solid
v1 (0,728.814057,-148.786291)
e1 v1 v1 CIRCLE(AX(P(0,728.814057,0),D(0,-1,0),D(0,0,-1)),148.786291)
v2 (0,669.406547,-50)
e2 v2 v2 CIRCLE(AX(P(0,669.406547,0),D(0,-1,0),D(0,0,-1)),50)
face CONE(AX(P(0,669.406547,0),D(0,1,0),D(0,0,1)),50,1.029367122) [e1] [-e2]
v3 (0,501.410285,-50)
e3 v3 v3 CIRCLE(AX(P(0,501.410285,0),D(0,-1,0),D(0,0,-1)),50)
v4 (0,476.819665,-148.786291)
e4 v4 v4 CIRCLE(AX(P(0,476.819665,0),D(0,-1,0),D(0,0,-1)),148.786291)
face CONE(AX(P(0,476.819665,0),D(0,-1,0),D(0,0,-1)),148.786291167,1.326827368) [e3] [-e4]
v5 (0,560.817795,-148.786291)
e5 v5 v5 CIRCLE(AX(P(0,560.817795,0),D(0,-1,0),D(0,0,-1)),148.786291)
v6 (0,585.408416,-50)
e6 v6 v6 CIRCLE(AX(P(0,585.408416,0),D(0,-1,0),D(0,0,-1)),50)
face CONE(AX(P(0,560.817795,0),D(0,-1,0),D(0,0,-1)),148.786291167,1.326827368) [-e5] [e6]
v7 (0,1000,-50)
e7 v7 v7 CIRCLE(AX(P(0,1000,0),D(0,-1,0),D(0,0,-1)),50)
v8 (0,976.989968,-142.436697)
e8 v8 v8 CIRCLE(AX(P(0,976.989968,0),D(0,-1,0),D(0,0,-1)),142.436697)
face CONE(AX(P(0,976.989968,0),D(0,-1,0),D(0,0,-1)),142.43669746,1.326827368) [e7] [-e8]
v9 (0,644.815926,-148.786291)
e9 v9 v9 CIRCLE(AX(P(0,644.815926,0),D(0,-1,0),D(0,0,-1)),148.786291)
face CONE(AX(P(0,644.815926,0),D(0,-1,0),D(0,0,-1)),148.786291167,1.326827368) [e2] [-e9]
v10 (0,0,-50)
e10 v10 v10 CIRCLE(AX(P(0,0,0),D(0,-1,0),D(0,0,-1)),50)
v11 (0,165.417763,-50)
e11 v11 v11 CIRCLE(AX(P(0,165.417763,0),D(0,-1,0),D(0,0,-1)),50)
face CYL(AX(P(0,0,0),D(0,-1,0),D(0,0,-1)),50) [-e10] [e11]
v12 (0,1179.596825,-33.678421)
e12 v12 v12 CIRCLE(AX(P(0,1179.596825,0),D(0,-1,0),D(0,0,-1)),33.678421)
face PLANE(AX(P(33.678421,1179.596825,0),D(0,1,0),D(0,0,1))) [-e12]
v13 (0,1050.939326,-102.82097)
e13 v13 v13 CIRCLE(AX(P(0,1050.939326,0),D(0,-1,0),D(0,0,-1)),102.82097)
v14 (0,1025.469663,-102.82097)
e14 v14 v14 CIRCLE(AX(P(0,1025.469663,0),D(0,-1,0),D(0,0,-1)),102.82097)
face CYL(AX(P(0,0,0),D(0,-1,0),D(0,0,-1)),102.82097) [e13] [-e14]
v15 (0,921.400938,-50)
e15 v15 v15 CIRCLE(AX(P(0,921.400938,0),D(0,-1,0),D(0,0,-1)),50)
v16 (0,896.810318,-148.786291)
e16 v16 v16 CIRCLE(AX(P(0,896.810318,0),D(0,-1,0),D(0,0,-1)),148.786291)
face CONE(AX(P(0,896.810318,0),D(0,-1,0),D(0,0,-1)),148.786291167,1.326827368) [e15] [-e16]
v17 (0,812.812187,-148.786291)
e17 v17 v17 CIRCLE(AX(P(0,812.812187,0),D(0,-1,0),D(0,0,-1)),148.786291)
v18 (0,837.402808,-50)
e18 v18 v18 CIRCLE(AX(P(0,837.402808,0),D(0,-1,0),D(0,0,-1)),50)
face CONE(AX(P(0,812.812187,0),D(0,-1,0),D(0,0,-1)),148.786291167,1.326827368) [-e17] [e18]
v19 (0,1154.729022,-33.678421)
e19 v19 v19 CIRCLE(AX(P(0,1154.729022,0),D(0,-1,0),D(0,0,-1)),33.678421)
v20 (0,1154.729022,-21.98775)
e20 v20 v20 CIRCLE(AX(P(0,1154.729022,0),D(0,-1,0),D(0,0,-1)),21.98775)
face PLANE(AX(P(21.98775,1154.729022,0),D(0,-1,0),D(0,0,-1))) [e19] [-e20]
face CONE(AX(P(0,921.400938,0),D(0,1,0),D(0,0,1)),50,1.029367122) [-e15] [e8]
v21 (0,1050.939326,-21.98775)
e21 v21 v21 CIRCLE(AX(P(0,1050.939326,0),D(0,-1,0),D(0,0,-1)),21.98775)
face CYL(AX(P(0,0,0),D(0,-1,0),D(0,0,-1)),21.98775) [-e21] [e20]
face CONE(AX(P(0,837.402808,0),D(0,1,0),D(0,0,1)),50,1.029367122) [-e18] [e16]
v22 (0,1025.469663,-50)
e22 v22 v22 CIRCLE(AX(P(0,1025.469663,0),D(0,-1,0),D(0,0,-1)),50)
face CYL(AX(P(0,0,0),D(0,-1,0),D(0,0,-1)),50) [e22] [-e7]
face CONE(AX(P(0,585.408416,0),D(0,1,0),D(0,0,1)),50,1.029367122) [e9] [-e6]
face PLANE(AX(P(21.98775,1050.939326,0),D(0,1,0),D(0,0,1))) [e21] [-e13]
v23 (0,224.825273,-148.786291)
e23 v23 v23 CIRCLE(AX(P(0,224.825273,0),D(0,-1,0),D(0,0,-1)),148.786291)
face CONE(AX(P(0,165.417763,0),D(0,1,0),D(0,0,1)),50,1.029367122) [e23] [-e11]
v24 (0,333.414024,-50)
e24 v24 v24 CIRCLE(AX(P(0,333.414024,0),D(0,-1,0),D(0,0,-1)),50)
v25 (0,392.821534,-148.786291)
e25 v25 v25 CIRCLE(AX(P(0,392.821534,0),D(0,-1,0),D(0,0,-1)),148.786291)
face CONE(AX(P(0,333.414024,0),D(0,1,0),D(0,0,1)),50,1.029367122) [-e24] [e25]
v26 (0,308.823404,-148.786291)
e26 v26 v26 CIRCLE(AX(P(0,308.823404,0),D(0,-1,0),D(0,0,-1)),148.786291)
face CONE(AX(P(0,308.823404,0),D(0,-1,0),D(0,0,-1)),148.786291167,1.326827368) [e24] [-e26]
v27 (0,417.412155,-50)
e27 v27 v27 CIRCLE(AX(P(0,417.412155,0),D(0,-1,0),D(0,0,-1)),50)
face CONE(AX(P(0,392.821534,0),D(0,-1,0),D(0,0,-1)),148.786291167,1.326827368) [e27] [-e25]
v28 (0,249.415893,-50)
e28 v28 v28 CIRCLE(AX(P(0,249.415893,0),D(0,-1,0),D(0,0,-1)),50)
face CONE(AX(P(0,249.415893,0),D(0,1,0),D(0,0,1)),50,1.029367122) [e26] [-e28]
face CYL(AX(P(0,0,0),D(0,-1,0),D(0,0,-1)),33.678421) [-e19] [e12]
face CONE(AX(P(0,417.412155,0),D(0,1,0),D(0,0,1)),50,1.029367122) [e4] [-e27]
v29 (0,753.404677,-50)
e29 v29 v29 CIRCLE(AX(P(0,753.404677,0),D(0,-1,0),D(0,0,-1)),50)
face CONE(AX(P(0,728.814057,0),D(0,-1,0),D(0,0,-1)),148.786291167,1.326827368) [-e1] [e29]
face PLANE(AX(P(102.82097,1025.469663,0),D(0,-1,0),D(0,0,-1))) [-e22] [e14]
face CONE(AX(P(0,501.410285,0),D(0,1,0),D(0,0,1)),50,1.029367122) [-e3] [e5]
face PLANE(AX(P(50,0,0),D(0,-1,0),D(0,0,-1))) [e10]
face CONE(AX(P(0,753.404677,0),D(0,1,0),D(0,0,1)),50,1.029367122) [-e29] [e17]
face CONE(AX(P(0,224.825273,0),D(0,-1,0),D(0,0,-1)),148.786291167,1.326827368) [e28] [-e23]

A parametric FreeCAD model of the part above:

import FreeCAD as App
import Part
import Sketcher

doc = App.newDocument("Part")
body = doc.addObject("PartDesign::Body", "Body")

sketch1 = body.newObject("Sketcher::SketchObject", "Sketch")
sketch1.AttachmentSupport = (doc.getObject("XY_Plane"), [""])
sketch1.MapMode = "FlatFace"
sketch1.addGeometry([
    Part.LineSegment(App.Vector(0, 1180, 0), App.Vector(0, 0, 0)),
    Part.LineSegment(App.Vector(0, 0, 0), App.Vector(50, 0, 0)),
    Part.LineSegment(App.Vector(50, 0, 0), App.Vector(50, 165, 0)),
    Part.LineSegment(App.Vector(50, 165, 0), App.Vector(149, 225, 0)),
    Part.LineSegment(App.Vector(149, 225, 0), App.Vector(50, 249, 0)),
    Part.LineSegment(App.Vector(50, 249, 0), App.Vector(149, 309, 0)),
    Part.LineSegment(App.Vector(149, 309, 0), App.Vector(50, 333, 0)),
    Part.LineSegment(App.Vector(50, 333, 0), App.Vector(149, 393, 0)),
    Part.LineSegment(App.Vector(149, 393, 0), App.Vector(50, 417, 0)),
    Part.LineSegment(App.Vector(50, 417, 0), App.Vector(149, 477, 0)),
    Part.LineSegment(App.Vector(149, 477, 0), App.Vector(50, 501, 0)),
    Part.LineSegment(App.Vector(50, 501, 0), App.Vector(149, 561, 0)),
    Part.LineSegment(App.Vector(149, 561, 0), App.Vector(50, 585, 0)),
    Part.LineSegment(App.Vector(50, 585, 0), App.Vector(149, 645, 0)),
    Part.LineSegment(App.Vector(149, 645, 0), App.Vector(50, 669, 0)),
    Part.LineSegment(App.Vector(50, 669, 0), App.Vector(149, 729, 0)),
    Part.LineSegment(App.Vector(149, 729, 0), App.Vector(50, 753, 0)),
    Part.LineSegment(App.Vector(50, 753, 0), App.Vector(149, 813, 0)),
    Part.LineSegment(App.Vector(149, 813, 0), App.Vector(50, 837, 0)),
    Part.LineSegment(App.Vector(50, 837, 0), App.Vector(149, 897, 0)),
    Part.LineSegment(App.Vector(149, 897, 0), App.Vector(50, 921, 0)),
    Part.LineSegment(App.Vector(50, 921, 0), App.Vector(142, 977, 0)),
    Part.LineSegment(App.Vector(142, 977, 0), App.Vector(50, 1000, 0)),
    Part.LineSegment(App.Vector(50, 1000, 0), App.Vector(50, 1025, 0)),
    Part.LineSegment(App.Vector(50, 1025, 0), App.Vector(103, 1025, 0)),
    Part.LineSegment(App.Vector(103, 1025, 0), App.Vector(103, 1051, 0)),
    Part.LineSegment(App.Vector(103, 1051, 0), App.Vector(22, 1051, 0)),
    Part.LineSegment(App.Vector(22, 1051, 0), App.Vector(22, 1155, 0)),
    Part.LineSegment(App.Vector(22, 1155, 0), App.Vector(34, 1155, 0)),
    Part.LineSegment(App.Vector(34, 1155, 0), App.Vector(34, 1180, 0)),
    Part.LineSegment(App.Vector(34, 1180, 0), App.Vector(0, 1180, 0)),
], False)
sketch1.addConstraint([
    Sketcher.Constraint("Coincident", 0, 2, 1, 1),
    Sketcher.Constraint("Coincident", 1, 2, 2, 1),
    Sketcher.Constraint("Coincident", 2, 2, 3, 1),
    Sketcher.Constraint("Coincident", 3, 2, 4, 1),
    Sketcher.Constraint("Coincident", 4, 2, 5, 1),
    Sketcher.Constraint("Coincident", 5, 2, 6, 1),
    Sketcher.Constraint("Coincident", 6, 2, 7, 1),
    Sketcher.Constraint("Coincident", 7, 2, 8, 1),
    Sketcher.Constraint("Coincident", 8, 2, 9, 1),
    Sketcher.Constraint("Coincident", 9, 2, 10, 1),
    Sketcher.Constraint("Coincident", 10, 2, 11, 1),
    Sketcher.Constraint("Coincident", 11, 2, 12, 1),
    Sketcher.Constraint("Coincident", 12, 2, 13, 1),
    Sketcher.Constraint("Coincident", 13, 2, 14, 1),
    Sketcher.Constraint("Coincident", 14, 2, 15, 1),
    Sketcher.Constraint("Coincident", 15, 2, 16, 1),
    Sketcher.Constraint("Coincident", 16, 2, 17, 1),
    Sketcher.Constraint("Coincident", 17, 2, 18, 1),
    Sketcher.Constraint("Coincident", 18, 2, 19, 1),
    Sketcher.Constraint("Coincident", 19, 2, 20, 1),
    Sketcher.Constraint("Coincident", 20, 2, 21, 1),
    Sketcher.Constraint("Coincident", 21, 2, 22, 1),
    Sketcher.Constraint("Coincident", 22, 2, 23, 1),
    Sketcher.Constraint("Coincident", 23, 2, 24, 1),
    Sketcher.Constraint("Coincident", 24, 2, 25, 1),
    Sketcher.Constraint("Coincident", 25, 2, 26, 1),
    Sketcher.Constraint("Coincident", 26, 2, 27, 1),
    Sketcher.Constraint("Coincident", 27, 2, 28, 1),
    Sketcher.Constraint("Coincident", 28, 2, 29, 1),
    Sketcher.Constraint("Coincident", 29, 2, 30, 1),
    Sketcher.Constraint("Coincident", 30, 2, 0, 1),
    Sketcher.Constraint("Vertical", 0),
    Sketcher.Constraint("Horizontal", 1),
    Sketcher.Constraint("Vertical", 2),
    Sketcher.Constraint("Vertical", 23),
    Sketcher.Constraint("Horizontal", 24),
    Sketcher.Constraint("Vertical", 25),
    Sketcher.Constraint("Horizontal", 26),
    Sketcher.Constraint("Vertical", 27),
    Sketcher.Constraint("Horizontal", 28),
    Sketcher.Constraint("Vertical", 29),
    Sketcher.Constraint("Horizontal", 30),
    Sketcher.Constraint("Coincident", 0, 2, -1, 1),
    Sketcher.Constraint("Parallel", 3, 5),
    Sketcher.Constraint("Parallel", 4, 6),
    Sketcher.Constraint("Parallel", 5, 7),
    Sketcher.Constraint("Parallel", 6, 8),
    Sketcher.Constraint("Parallel", 7, 9),
    Sketcher.Constraint("Parallel", 8, 10),
    Sketcher.Constraint("Parallel", 9, 11),
    Sketcher.Constraint("Parallel", 10, 12),
    Sketcher.Constraint("Parallel", 11, 13),
    Sketcher.Constraint("Parallel", 12, 14),
    Sketcher.Constraint("Parallel", 13, 15),
    Sketcher.Constraint("Parallel", 14, 16),
    Sketcher.Constraint("Parallel", 15, 17),
    Sketcher.Constraint("Parallel", 16, 18),
    Sketcher.Constraint("Parallel", 17, 19),
    Sketcher.Constraint("Parallel", 18, 20),
    Sketcher.Constraint("Parallel", 19, 21),
    Sketcher.Constraint("Parallel", 20, 22),
    Sketcher.Constraint("Vertical", 2, 2, 4, 2),
    Sketcher.Constraint("Vertical", 3, 2, 5, 2),
    Sketcher.Constraint("Vertical", 4, 2, 6, 2),
    Sketcher.Constraint("Vertical", 5, 2, 7, 2),
    Sketcher.Constraint("Vertical", 6, 2, 8, 2),
    Sketcher.Constraint("Vertical", 7, 2, 9, 2),
    Sketcher.Constraint("Vertical", 8, 2, 10, 2),
    Sketcher.Constraint("Vertical", 9, 2, 11, 2),
    Sketcher.Constraint("Vertical", 10, 2, 12, 2),
    Sketcher.Constraint("Vertical", 11, 2, 13, 2),
    Sketcher.Constraint("Vertical", 12, 2, 14, 2),
    Sketcher.Constraint("Vertical", 13, 2, 15, 2),
    Sketcher.Constraint("Vertical", 14, 2, 16, 2),
    Sketcher.Constraint("Vertical", 15, 2, 17, 2),
    Sketcher.Constraint("Vertical", 16, 2, 18, 2),
    Sketcher.Constraint("Vertical", 17, 2, 19, 2),
    Sketcher.Constraint("Vertical", 18, 2, 20, 2),
    Sketcher.Constraint("Vertical", 20, 2, 22, 2),
    Sketcher.Constraint("Equal", 23, 25),
    Sketcher.Constraint("DistanceX", 1, 1, 1, 2, 50.0),
    Sketcher.Constraint("DistanceY", -1, 1, 22, 2, 1000.0),
    Sketcher.Constraint("DistanceX", 24, 1, 24, 2, 52.82097),
    Sketcher.Constraint("DistanceX", 26, 2, 26, 1, 80.83322),
    Sketcher.Constraint("DistanceX", 28, 1, 28, 2, 11.690671),
    Sketcher.Constraint("DistanceY", 26, 2, 29, 2, 128.657499),
    Sketcher.Constraint("Distance", 21, 107.864189),
    Sketcher.Constraint("Distance", 22, 95.25757),
    Sketcher.Constraint("DistanceY", 0, 2, 0, 1, 1179.596825),
    Sketcher.Constraint("DistanceY", 2, 1, 2, 2, 165.417763),
    Sketcher.Constraint("DistanceY", 27, 1, 27, 2, 103.789696),
    Sketcher.Constraint("DistanceX", -1, 1, 3, 2, 148.786291),
])
revolution = body.newObject("PartDesign::Revolution", "Revolution")
revolution.Profile = sketch1
revolution.ReferenceAxis = (sketch1, ["V_Axis"])
revolution.Angle = 360

doc.recompute()
